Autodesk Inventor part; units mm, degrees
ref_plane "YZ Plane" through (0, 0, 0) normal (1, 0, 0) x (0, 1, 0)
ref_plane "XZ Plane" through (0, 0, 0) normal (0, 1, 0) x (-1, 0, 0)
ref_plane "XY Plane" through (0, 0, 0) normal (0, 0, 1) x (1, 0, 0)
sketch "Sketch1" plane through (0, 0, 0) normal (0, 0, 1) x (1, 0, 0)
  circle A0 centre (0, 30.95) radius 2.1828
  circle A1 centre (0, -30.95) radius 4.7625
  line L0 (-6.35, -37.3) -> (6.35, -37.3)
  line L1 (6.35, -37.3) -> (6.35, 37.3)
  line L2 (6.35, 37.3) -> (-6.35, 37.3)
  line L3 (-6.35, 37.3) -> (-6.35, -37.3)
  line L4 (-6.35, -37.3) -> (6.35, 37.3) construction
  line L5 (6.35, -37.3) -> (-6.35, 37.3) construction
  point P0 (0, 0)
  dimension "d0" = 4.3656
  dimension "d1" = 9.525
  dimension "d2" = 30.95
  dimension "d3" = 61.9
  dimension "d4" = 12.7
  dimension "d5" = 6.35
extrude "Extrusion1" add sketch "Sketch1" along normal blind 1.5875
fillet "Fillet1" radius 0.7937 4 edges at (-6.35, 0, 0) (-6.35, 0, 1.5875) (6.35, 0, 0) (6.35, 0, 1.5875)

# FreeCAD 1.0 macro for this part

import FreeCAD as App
import Part
import Sketcher

V = App.Vector
Q = App.Units.Quantity


def edges_at(feature, points):
    """Names of the edges that pass closest to the given points."""
    edges = feature.Shape.Edges
    near = lambda p: min(range(len(edges)), key=lambda i: edges[i].distToShape(Part.Vertex(*p))[0])
    return sorted({f"Edge{near(p) + 1}" for p in points})


def add_polygon(sketch, points):
    """Adds a closed chain of lines whose ends are joined by coincident constraints."""
    first, n = sketch.GeometryCount, len(points)
    for a, b in zip(points, points[1:] + points[:1]):
        sketch.addGeometry(Part.LineSegment(App.Vector(*a, 0), App.Vector(*b, 0)), False)
    for i in range(n):
        sketch.addConstraint(Sketcher.Constraint("Coincident", first + i, 2, first + (i + 1) % n, 1))

doc = App.newDocument("Part")
body = doc.addObject("PartDesign::Body", "Body")

sketch1 = body.newObject("Sketcher::SketchObject", "Sketch")
sketch1.AttachmentSupport = (doc.getObject("XY_Plane"), [""])
sketch1.MapMode = "FlatFace"
add_polygon(sketch1, [(-6.35, 37.3), (-6.35, -37.3), (6.35, -37.3), (6.35, 37.3)])
sketch1.addGeometry(Part.Circle(V(0, -30.95, 0), V(0, 0, 1), 4.7625), False)
sketch1.addGeometry(Part.Circle(V(0, 30.95, 0), V(0, 0, 1), 2.1828), False)
sketch1.addConstraint([
    Sketcher.Constraint("Vertical", 0),
    Sketcher.Constraint("Horizontal", 1),
    Sketcher.Constraint("Vertical", 2),
    Sketcher.Constraint("Horizontal", 3),
    Sketcher.Constraint("Symmetric", 4, 3, 5, 3, -1, 1),
    Sketcher.Constraint("Symmetric", 0, 2, 2, 2, -1, 1),
    Sketcher.Constraint("PointOnObject", 4, 3, -2),
    Sketcher.Constraint("Diameter", 4, Q("0.375 in")),
    Sketcher.Constraint("Diameter", 5, Q("0.171874 in")),
    Sketcher.Constraint("DistanceX", 1, 1, 1, 2, Q("0.5 in")),
    Sketcher.Constraint("DistanceY", 0, 2, 4, 3, Q("0.25 in")),
    Sketcher.Constraint("DistanceY", 4, 3, 5, 3, Q("2.437 in")),
])
pad1 = body.newObject("PartDesign::Pad", "Pad")
pad1.Profile = sketch1
pad1.Length = Q("0.0625 in")
doc.recompute()

fillet = body.newObject("PartDesign::Fillet", "Fillet")
fillet.Base = (pad1, edges_at(pad1, [
    (-6.35, 0, 0),
    (-6.35, 0, 1.587),
    (6.35, 0, 0),
    (6.35, 0, 1.587),
]))
fillet.Radius = Q("0.031248 in")

doc.recompute()
